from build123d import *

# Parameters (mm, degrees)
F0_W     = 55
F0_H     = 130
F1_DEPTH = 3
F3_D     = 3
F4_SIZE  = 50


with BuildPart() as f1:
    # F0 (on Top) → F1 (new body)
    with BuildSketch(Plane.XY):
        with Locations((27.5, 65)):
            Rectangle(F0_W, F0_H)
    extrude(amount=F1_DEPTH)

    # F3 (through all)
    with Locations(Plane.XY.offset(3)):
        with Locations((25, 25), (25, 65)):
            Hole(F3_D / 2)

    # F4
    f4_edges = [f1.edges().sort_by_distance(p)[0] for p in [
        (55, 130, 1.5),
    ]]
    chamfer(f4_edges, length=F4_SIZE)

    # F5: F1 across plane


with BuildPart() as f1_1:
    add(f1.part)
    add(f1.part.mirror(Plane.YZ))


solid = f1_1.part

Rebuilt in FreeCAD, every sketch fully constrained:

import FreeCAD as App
import Part
import Sketcher

V = App.Vector
Q = App.Units.Quantity


def edges_at(feature, points):
    """Names of the edges that pass closest to the given points."""
    edges = feature.Shape.Edges
    near = lambda p: min(range(len(edges)), key=lambda i: edges[i].distToShape(Part.Vertex(*p))[0])
    return sorted({f"Edge{near(p) + 1}" for p in points})

doc = App.newDocument("Part")
body = doc.addObject("PartDesign::Body", "Body")

# Sketch on XY plane
sketch1 = doc.addObject("Sketcher::SketchObject", "Sketch")
body.addObject(sketch1)
sketch1.AttachmentSupport = (doc.XY_Plane, [""])
sketch1.MapMode = "FlatFace"
sketch1.addGeometry(Part.LineSegment(V(0, 130, 0), V(0, 0, 0)), False)
sketch1.addGeometry(Part.LineSegment(V(0, 0, 0), V(55, 0, 0)), False)
sketch1.addGeometry(Part.LineSegment(V(55, 0, 0), V(55, 130, 0)), False)
sketch1.addGeometry(Part.LineSegment(V(55, 130, 0), V(0, 130, 0)), False)
sketch1.addConstraint(Sketcher.Constraint("Coincident", 0, 2, 1, 1))
sketch1.addConstraint(Sketcher.Constraint("Coincident", 1, 2, 2, 1))
sketch1.addConstraint(Sketcher.Constraint("Coincident", 2, 2, 3, 1))
sketch1.addConstraint(Sketcher.Constraint("Coincident", 3, 2, 0, 1))
sketch1.addConstraint(Sketcher.Constraint("Vertical", 0))
sketch1.addConstraint(Sketcher.Constraint("Horizontal", 1))
sketch1.addConstraint(Sketcher.Constraint("Vertical", 2))
sketch1.addConstraint(Sketcher.Constraint("Horizontal", 3))
sketch1.addConstraint(Sketcher.Constraint("Coincident", 0, 2, -1, 1))
sketch1.addConstraint(Sketcher.Constraint("DistanceX", 1, 1, 1, 2, Q("55 mm")))
sketch1.addConstraint(Sketcher.Constraint("DistanceY", 0, 2, 0, 1, Q("130 mm")))
pad1 = doc.addObject("PartDesign::Pad", "Pad")
body.addObject(pad1)
pad1.Profile = sketch1
pad1.Length = 3

# Sketch on XY plane
sketch2 = doc.addObject("Sketcher::SketchObject", "Sketch001")
body.addObject(sketch2)
sketch2.AttachmentSupport = (doc.XY_Plane, [""])
sketch2.MapMode = "FlatFace"
sketch2.AttachmentOffset = App.Placement(V(0, 0, 3), App.Rotation())
sketch2.addGeometry(Part.Circle(V(25, 25, 0), V(0, 0, 1), 1.5), False)
sketch2.addGeometry(Part.Circle(V(25, 65, 0), V(0, 0, 1), 1.5), False)
sketch2.addConstraint(Sketcher.Constraint("Equal", 0, 1))
sketch2.addConstraint(Sketcher.Constraint("Vertical", 0, 3, 1, 3))
sketch2.addConstraint(Sketcher.Constraint("Diameter", 0, Q("3 mm")))
sketch2.addConstraint(Sketcher.Constraint("DistanceX", -1, 1, 0, 3, Q("25 mm")))
sketch2.addConstraint(Sketcher.Constraint("DistanceY", -1, 1, 0, 3, Q("25 mm")))
sketch2.addConstraint(Sketcher.Constraint("DistanceY", -1, 1, 1, 3, Q("65 mm")))
doc.recompute()
hole = doc.addObject("PartDesign::Hole", "Hole")
body.addObject(hole)
hole.Profile = sketch2
hole.ThreadType = "None"
hole.Diameter = 3
hole.DepthType = "ThroughAll"
doc.recompute()

chamfer = doc.addObject("PartDesign::Chamfer", "Chamfer")
body.addObject(chamfer)
chamfer.Base = (hole, edges_at(hole, [(55, 130, 1.5)]))
chamfer.Size = 50
body2 = doc.addObject("PartDesign::Body", "Body001")
doc.recompute()

body2.BaseFeature = body
doc.recompute()

mirroring = doc.addObject("Part::Mirroring", "Mirroring")
mirroring.Source = body
mirroring.Base = V(0, 0, 0)
mirroring.Normal = V(1, 0, 0)
body3 = doc.addObject("PartDesign::Body", "Body002")
body3.BaseFeature = mirroring
boolean = doc.addObject("PartDesign::Boolean", "Boolean")
body2.addObject(boolean)
boolean.Type = "Fuse"
boolean.addObjects([body3])
doc.recompute()
mirroring.Visibility = False

doc.recompute()
